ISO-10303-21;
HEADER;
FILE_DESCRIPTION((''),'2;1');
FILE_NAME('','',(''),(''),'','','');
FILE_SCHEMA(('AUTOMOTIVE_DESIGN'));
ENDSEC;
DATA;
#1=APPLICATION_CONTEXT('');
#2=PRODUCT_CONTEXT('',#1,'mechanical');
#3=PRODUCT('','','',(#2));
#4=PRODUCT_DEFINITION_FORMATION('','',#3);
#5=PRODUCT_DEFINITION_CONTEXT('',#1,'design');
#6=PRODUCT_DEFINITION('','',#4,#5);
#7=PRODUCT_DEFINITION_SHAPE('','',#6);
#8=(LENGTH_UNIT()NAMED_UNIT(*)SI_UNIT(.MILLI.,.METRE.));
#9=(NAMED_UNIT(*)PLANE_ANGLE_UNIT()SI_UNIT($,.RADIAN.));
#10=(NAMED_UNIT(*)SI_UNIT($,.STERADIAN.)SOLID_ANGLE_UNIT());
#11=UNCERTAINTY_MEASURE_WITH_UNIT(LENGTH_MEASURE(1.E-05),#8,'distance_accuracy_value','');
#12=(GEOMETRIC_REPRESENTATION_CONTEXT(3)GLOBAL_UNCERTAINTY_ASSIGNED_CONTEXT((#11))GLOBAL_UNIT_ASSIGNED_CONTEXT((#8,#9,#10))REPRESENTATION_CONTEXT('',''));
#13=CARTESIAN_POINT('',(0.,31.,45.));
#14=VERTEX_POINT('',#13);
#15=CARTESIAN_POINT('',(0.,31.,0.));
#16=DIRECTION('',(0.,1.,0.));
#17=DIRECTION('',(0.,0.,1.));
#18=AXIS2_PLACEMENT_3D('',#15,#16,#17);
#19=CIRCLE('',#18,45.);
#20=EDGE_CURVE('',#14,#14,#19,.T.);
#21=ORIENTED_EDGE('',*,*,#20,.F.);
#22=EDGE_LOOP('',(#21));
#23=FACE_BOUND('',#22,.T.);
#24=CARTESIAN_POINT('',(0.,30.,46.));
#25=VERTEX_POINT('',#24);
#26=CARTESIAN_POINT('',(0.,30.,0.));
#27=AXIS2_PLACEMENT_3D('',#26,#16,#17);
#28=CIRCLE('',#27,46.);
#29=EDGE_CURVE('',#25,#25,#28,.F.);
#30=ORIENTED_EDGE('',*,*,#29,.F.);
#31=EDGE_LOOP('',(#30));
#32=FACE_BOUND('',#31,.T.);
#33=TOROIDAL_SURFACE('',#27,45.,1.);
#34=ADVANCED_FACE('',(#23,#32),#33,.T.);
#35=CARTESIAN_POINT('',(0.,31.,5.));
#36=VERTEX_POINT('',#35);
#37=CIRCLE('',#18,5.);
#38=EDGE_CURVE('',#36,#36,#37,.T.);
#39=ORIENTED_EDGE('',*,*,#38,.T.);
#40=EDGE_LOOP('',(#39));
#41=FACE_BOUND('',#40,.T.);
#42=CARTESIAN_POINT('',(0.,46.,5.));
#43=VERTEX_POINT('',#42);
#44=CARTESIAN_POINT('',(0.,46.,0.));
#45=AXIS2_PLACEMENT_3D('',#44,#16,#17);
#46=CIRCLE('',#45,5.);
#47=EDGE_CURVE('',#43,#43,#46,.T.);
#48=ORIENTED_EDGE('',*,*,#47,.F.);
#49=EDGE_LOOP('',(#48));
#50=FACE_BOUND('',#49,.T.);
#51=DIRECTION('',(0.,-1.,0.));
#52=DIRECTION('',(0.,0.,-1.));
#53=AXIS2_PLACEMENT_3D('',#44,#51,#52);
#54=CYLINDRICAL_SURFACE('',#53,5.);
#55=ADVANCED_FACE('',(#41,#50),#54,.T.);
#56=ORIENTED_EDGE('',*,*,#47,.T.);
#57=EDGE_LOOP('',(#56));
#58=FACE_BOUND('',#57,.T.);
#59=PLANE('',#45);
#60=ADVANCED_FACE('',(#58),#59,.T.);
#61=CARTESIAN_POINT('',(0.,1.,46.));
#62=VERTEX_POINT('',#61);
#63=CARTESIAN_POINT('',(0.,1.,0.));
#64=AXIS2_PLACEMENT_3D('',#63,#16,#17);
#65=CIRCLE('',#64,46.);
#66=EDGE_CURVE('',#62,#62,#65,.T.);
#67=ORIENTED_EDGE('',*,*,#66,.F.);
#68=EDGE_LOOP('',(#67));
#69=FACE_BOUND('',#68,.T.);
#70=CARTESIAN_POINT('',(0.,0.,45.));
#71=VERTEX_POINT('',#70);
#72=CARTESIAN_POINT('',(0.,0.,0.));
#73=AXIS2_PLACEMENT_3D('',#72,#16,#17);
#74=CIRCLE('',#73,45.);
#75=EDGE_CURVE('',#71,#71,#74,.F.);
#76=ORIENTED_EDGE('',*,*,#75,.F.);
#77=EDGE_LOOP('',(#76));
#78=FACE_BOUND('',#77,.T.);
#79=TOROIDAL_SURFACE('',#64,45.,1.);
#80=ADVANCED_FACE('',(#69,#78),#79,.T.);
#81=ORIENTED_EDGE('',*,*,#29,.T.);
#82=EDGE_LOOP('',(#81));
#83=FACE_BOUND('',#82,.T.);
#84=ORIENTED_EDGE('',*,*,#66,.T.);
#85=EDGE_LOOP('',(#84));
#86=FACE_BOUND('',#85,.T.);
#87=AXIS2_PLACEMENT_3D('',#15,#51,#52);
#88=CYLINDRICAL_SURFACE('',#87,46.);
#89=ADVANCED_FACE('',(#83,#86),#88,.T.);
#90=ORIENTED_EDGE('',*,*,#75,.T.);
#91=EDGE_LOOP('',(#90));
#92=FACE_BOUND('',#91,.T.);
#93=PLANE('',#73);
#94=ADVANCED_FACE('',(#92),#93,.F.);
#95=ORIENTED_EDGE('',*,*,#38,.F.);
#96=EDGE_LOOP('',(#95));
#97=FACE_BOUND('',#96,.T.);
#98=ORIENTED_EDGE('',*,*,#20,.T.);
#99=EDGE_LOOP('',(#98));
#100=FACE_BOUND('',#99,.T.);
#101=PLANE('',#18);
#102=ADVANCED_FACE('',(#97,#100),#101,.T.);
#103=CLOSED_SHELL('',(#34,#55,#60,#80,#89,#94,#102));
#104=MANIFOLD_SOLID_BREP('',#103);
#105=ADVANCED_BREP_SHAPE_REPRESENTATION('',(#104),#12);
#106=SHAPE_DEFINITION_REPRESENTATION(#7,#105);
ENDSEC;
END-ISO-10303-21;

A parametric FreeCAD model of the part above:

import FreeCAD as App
import Part
import Sketcher


def edges_at(feature, points):
    """Names of the edges that pass closest to the given points."""
    edges = feature.Shape.Edges
    near = lambda p: min(range(len(edges)), key=lambda i: edges[i].distToShape(Part.Vertex(*p))[0])
    return sorted({f"Edge{near(p) + 1}" for p in points})

doc = App.newDocument("Part")
body = doc.addObject("PartDesign::Body", "Body")

sketch1 = body.newObject("Sketcher::SketchObject", "Sketch")
sketch1.AttachmentSupport = (doc.getObject("XZ_Plane"), [""])
sketch1.MapMode = "FlatFace"
sketch1.addGeometry(Part.Circle(App.Vector(0, 0, 0), App.Vector(0, 0, 1), 46), False)
sketch1.addConstraint([
    Sketcher.Constraint("Coincident", 0, 3, -1, 1),
    Sketcher.Constraint("Diameter", 0, 92.0),
])
pad1 = body.newObject("PartDesign::Pad", "Pad")
pad1.Profile = sketch1
pad1.Length = 31
pad1.Reversed = True

sketch2 = body.newObject("Sketcher::SketchObject", "Sketch001")
sketch2.AttachmentSupport = (doc.getObject("XZ_Plane"), [""])
sketch2.MapMode = "FlatFace"
sketch2.AttachmentOffset = App.Placement(App.Vector(0, 0, -31), App.Rotation())
sketch2.addGeometry(Part.Circle(App.Vector(0, 0, 0), App.Vector(0, 0, 1), 5), False)
sketch2.addConstraint([
    Sketcher.Constraint("Coincident", 0, 3, -1, 1),
    Sketcher.Constraint("Diameter", 0, 10.0),
])
pad2 = body.newObject("PartDesign::Pad", "Pad001")
pad2.Profile = sketch2
pad2.Length = 15
pad2.Reversed = True
doc.recompute()

fillet = body.newObject("PartDesign::Fillet", "Fillet")
fillet.Base = (pad2, edges_at(pad2, [(0, 0, -46), (0, 31, -46)]))
fillet.Radius = 1

doc.recompute()
